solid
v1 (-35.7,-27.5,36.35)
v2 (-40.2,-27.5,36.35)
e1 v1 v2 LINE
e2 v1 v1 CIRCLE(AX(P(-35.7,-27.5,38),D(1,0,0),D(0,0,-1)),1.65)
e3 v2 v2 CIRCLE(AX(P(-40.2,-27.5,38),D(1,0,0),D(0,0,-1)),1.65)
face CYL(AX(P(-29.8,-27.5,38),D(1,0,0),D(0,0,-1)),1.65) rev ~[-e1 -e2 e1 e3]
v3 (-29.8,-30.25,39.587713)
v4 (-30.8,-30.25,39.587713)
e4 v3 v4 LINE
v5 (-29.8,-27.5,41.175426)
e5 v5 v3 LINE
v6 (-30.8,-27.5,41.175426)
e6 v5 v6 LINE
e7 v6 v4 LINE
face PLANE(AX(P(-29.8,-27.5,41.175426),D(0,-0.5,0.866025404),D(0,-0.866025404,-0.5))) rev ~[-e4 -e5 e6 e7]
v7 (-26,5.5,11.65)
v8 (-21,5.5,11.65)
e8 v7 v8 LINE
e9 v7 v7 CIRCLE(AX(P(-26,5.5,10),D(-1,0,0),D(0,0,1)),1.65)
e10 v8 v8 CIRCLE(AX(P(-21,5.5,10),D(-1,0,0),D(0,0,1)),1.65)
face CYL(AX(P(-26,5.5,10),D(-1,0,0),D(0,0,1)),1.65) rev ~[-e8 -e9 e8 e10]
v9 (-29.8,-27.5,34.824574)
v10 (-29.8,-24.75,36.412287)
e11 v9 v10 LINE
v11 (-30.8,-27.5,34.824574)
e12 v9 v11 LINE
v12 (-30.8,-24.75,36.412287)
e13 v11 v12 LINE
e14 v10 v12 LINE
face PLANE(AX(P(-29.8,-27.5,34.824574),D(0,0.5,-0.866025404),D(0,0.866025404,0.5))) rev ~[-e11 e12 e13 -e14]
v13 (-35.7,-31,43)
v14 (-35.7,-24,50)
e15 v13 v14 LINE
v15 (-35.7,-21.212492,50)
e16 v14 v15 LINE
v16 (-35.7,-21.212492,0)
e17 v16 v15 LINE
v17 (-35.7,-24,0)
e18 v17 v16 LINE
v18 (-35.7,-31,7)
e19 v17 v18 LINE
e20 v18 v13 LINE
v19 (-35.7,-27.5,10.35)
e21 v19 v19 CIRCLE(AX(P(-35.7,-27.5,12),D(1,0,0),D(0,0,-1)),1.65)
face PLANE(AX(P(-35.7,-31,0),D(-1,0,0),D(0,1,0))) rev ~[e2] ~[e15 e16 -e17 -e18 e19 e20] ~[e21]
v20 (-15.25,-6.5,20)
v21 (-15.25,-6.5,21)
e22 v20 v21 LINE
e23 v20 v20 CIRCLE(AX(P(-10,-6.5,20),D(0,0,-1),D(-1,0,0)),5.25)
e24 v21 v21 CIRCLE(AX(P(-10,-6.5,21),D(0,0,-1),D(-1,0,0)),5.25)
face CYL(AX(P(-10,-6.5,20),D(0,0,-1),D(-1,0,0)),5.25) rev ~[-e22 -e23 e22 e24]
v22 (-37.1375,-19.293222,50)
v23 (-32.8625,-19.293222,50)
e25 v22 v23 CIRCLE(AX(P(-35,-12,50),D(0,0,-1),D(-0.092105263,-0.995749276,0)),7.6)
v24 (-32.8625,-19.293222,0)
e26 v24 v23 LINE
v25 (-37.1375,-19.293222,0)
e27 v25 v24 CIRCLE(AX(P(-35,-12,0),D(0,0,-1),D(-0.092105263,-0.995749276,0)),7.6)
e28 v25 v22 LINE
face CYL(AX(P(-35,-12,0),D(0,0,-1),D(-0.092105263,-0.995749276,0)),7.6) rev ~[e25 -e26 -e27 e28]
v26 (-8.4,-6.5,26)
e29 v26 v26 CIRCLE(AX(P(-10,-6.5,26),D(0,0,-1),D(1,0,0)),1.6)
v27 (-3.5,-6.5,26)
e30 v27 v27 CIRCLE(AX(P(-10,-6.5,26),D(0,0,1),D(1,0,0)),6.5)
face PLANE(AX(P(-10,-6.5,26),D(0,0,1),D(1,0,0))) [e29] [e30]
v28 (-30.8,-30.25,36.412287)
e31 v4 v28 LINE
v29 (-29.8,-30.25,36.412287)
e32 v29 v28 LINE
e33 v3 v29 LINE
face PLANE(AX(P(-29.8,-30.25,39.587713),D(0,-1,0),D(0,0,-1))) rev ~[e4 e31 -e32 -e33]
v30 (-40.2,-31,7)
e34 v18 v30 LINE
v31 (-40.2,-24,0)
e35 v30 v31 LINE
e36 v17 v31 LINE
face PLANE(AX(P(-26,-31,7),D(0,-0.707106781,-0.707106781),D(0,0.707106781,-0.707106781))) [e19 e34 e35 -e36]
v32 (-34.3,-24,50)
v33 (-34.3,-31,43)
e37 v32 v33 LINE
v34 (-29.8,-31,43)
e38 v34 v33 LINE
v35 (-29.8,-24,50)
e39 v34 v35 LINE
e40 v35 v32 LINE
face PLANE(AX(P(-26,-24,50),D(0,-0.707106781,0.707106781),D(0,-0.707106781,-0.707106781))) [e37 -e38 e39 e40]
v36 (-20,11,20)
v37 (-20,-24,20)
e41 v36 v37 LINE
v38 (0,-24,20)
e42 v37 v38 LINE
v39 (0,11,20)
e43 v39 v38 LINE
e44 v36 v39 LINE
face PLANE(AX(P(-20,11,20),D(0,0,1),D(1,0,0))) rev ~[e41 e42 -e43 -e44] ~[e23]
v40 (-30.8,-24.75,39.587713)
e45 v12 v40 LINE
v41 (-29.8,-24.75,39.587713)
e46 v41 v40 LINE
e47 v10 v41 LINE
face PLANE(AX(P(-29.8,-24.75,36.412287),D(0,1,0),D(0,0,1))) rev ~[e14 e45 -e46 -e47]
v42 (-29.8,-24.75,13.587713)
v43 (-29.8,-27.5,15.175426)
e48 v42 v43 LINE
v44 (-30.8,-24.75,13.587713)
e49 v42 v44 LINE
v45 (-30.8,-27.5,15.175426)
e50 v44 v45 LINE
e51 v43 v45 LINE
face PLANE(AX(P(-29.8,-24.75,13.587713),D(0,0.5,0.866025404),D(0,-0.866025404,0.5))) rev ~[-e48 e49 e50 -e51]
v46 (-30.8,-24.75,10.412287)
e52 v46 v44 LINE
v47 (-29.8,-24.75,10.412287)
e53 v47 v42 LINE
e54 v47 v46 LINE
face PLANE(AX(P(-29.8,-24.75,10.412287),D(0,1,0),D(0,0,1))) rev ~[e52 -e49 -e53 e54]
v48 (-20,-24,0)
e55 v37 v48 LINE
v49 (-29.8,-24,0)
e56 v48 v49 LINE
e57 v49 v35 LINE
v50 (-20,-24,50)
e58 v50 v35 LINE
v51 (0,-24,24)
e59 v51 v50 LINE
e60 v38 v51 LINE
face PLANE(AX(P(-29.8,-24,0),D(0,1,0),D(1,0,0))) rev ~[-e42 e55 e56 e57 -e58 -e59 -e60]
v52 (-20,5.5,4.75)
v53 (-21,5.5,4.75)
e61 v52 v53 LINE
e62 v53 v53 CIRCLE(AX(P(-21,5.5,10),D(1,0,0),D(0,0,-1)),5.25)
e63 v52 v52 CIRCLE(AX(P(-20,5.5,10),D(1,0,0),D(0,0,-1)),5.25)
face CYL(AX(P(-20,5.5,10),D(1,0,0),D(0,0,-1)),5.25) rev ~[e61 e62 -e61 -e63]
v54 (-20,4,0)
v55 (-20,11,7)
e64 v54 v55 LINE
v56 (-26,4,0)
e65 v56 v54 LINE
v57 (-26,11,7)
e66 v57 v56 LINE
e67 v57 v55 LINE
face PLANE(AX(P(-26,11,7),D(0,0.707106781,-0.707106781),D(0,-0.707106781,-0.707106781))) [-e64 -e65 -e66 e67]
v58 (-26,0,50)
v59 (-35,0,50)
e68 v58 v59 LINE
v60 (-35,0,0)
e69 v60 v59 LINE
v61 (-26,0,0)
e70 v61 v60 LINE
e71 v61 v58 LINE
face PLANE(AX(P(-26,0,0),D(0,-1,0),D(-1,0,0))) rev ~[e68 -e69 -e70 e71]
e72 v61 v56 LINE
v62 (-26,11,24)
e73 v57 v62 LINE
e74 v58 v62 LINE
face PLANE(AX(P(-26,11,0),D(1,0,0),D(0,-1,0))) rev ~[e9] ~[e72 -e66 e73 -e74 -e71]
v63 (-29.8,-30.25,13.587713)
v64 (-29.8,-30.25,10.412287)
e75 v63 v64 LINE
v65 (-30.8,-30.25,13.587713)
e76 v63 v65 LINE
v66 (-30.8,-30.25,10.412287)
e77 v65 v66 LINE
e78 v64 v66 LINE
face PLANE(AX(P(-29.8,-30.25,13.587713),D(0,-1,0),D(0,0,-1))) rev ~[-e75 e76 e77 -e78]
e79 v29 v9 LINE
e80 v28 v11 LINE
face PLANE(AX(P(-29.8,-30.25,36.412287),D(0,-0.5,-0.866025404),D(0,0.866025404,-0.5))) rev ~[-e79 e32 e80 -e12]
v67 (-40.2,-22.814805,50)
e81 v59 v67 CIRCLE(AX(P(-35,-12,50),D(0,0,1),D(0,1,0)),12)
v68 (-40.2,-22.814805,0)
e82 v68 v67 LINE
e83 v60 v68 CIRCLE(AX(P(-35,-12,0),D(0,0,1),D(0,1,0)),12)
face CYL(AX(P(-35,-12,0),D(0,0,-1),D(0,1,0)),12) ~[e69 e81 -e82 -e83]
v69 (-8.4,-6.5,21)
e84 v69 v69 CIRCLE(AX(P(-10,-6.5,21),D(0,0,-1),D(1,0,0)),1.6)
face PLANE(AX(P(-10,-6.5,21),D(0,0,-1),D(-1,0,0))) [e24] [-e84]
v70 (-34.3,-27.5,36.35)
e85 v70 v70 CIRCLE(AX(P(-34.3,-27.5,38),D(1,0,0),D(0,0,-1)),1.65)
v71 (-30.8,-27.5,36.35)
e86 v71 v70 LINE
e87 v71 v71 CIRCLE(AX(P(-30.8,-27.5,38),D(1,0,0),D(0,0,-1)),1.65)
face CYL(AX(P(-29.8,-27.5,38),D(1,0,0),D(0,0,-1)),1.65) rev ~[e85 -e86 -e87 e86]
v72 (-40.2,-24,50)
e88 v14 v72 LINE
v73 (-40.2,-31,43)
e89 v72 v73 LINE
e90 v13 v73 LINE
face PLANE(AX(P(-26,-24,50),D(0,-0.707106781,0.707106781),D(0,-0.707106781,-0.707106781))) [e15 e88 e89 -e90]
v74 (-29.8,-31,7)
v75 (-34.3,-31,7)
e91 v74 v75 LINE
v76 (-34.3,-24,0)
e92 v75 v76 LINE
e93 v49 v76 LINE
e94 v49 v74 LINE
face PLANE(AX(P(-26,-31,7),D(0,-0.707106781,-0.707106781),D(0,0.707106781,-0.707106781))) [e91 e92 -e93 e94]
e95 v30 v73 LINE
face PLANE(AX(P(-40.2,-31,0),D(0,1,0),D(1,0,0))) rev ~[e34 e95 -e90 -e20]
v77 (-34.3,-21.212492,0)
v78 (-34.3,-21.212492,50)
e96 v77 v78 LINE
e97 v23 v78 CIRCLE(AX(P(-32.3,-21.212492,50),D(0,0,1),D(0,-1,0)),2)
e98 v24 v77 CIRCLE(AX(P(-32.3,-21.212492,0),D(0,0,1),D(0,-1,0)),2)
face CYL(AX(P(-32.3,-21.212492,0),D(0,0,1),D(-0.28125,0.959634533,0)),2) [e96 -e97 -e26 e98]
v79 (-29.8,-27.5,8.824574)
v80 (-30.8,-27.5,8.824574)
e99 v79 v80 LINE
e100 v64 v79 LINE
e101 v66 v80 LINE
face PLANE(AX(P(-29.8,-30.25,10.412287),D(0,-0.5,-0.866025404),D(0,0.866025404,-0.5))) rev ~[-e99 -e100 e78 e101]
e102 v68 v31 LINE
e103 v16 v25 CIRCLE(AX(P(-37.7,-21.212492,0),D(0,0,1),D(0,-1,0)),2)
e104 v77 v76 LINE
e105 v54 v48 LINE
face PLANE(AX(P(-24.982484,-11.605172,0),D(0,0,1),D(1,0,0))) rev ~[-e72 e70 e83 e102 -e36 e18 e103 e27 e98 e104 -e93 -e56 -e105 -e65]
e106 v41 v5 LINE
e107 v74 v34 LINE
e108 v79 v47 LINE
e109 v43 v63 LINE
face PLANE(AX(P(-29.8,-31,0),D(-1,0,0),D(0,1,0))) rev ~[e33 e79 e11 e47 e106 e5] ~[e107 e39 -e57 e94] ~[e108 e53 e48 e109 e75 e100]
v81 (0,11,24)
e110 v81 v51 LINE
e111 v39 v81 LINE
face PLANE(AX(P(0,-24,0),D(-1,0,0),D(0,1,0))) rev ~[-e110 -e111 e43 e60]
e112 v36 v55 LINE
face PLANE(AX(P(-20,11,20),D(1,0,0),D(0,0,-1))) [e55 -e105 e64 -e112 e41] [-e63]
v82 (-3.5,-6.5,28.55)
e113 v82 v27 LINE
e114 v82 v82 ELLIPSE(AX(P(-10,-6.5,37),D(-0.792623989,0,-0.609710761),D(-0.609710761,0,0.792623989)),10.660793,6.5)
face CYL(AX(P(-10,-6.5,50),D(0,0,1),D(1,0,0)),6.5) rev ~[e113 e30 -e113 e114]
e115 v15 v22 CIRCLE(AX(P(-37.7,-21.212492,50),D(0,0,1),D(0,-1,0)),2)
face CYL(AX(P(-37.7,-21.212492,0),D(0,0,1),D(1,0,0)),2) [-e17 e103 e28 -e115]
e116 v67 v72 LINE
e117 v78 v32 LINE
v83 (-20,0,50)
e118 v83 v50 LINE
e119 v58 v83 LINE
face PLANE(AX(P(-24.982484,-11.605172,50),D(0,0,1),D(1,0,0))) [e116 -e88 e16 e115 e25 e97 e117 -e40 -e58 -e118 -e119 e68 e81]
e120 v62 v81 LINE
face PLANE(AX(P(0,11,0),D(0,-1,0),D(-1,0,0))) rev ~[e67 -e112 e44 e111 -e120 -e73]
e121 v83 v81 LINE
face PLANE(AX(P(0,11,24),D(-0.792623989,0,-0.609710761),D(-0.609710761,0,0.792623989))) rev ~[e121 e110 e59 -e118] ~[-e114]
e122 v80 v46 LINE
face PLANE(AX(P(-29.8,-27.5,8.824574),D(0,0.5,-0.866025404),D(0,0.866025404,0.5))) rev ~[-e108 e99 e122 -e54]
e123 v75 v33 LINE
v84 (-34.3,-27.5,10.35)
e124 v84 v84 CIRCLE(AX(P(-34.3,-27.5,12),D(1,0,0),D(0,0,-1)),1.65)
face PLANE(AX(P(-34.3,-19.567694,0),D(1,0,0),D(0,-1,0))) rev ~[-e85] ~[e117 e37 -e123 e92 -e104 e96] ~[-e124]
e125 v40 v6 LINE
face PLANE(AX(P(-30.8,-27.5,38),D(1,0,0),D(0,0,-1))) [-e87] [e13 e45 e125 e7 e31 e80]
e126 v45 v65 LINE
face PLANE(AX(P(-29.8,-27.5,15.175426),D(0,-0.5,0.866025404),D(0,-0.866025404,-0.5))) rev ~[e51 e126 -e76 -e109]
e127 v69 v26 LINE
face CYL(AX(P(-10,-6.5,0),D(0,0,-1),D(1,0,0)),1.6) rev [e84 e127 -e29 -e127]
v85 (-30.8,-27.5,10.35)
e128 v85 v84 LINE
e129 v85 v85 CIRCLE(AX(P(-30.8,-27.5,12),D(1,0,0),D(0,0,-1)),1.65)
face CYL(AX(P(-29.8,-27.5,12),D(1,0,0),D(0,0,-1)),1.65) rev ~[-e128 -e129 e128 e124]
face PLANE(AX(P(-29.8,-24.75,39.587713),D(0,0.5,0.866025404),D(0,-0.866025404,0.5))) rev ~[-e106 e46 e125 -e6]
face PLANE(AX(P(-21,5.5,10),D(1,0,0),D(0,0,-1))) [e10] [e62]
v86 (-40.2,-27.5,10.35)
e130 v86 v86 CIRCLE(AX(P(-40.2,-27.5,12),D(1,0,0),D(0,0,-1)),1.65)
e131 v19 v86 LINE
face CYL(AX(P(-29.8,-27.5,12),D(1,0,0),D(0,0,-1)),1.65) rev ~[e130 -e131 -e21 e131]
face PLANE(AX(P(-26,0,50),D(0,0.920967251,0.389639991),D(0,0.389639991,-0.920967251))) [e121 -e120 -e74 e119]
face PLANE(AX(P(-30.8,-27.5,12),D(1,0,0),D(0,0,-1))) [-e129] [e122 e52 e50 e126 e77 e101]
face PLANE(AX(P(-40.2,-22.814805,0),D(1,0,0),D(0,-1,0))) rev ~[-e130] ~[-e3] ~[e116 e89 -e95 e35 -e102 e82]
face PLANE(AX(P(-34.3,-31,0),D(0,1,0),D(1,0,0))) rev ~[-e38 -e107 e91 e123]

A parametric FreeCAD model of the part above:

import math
import FreeCAD as App
import Part
import Sketcher

V = App.Vector
Q = App.Units.Quantity


def edges_at(feature, points):
    """Names of the edges that pass closest to the given points."""
    edges = feature.Shape.Edges
    near = lambda p: min(range(len(edges)), key=lambda i: edges[i].distToShape(Part.Vertex(*p))[0])
    return sorted({f"Edge{near(p) + 1}" for p in points})


def add_polygon(sketch, points):
    """Adds a closed chain of lines whose ends are joined by coincident constraints."""
    first, n = sketch.GeometryCount, len(points)
    for a, b in zip(points, points[1:] + points[:1]):
        sketch.addGeometry(Part.LineSegment(App.Vector(*a, 0), App.Vector(*b, 0)), False)
    for i in range(n):
        sketch.addConstraint(Sketcher.Constraint("Coincident", first + i, 2, first + (i + 1) % n, 1))

doc = App.newDocument("Part")
body = doc.addObject("PartDesign::Body", "Body")

# Sketch on XY plane
sketch1 = body.newObject("Sketcher::SketchObject", "Sketch")
sketch1.AttachmentSupport = (doc.getObject("XY_Plane"), [""])
sketch1.MapMode = "FlatFace"
sketch1.addGeometry([
    Part.LineSegment(V(0, 11, 0), V(-26, 11, 0)),  # 0
    Part.LineSegment(V(-26, 11, 0), V(-26, 0, 0)),  # 1
    Part.LineSegment(V(-26, 0, 0), V(-35, 0, 0)),  # 2
    Part.ArcOfCircle(Part.Circle(V(-35, -12, 0), V(0, 0, 1), 12), math.radians(90), math.radians(244)),  # 3
    Part.LineSegment(V(-40.2, -22.8, 0), V(-40.2, -31, 0)),  # 4
    Part.LineSegment(V(-40.2, -31, 0), V(-35.7, -31, 0)),  # 5
    Part.LineSegment(V(-35.7, -31, 0), V(-35.7, -19.6, 0)),  # 6
    Part.ArcOfCircle(Part.Circle(V(-35, -12, 0), V(0, 0, 1), 7.6), math.radians(-85), math.radians(265)),  # 7
    Part.LineSegment(V(-34.3, -19.6, 0), V(-34.3, -31, 0)),  # 8
    Part.LineSegment(V(-34.3, -31, 0), V(-29.8, -31, 0)),  # 9
    Part.LineSegment(V(-29.8, -31, 0), V(-29.8, -24, 0)),  # 10
    Part.LineSegment(V(-29.8, -24, 0), V(0, -24, 0)),  # 11
    Part.LineSegment(V(0, -24, 0), V(0, 11, 0)),  # 12
    Part.Circle(V(-10, -6.5, 0), V(0, 0, 1), 1.6),  # 13
], False)
sketch1.addConstraint([
    Sketcher.Constraint("Coincident", 0, 2, 1, 1),
    Sketcher.Constraint("Coincident", 1, 2, 2, 1),
    Sketcher.Constraint("Tangent", 2, 2, 3, 1),
    Sketcher.Constraint("Coincident", 3, 2, 4, 1),
    Sketcher.Constraint("Coincident", 4, 2, 5, 1),
    Sketcher.Constraint("Coincident", 5, 2, 6, 1),
    Sketcher.Constraint("Coincident", 6, 2, 7, 2),
    Sketcher.Constraint("Coincident", 7, 1, 8, 1),
    Sketcher.Constraint("Coincident", 8, 2, 9, 1),
    Sketcher.Constraint("Coincident", 9, 2, 10, 1),
    Sketcher.Constraint("Coincident", 10, 2, 11, 1),
    Sketcher.Constraint("Coincident", 11, 2, 12, 1),
    Sketcher.Constraint("Coincident", 12, 2, 0, 1),
    Sketcher.Constraint("Horizontal", 0),
    Sketcher.Constraint("Vertical", 1),
    Sketcher.Constraint("Horizontal", 2),
    Sketcher.Constraint("Vertical", 4),
    Sketcher.Constraint("Horizontal", 5),
    Sketcher.Constraint("Vertical", 6),
    Sketcher.Constraint("Vertical", 8),
    Sketcher.Constraint("Horizontal", 9),
    Sketcher.Constraint("Vertical", 10),
    Sketcher.Constraint("Horizontal", 11),
    Sketcher.Constraint("Vertical", 12),
    Sketcher.Constraint("Coincident", 7, 3, 3, 3),
    Sketcher.Constraint("PointOnObject", 1, 2, -1),
    Sketcher.Constraint("PointOnObject", 11, 2, -2),
    Sketcher.Constraint("Horizontal", 6, 2, 7, 1),
    Sketcher.Constraint("Horizontal", 5, 2, 8, 2),
    Sketcher.Constraint("Equal", 5, 9),
    Sketcher.Constraint("Radius", 3, 12.0),
    Sketcher.Constraint("Diameter", 13, 3.2),
    Sketcher.Constraint("Radius", 7, 7.6),
    Sketcher.Constraint("DistanceX", 0, 2, 0, 1, 26.0),
    Sketcher.Constraint("DistanceX", 2, 2, 2, 1, 9.0),
    Sketcher.Constraint("DistanceY", 1, 2, 1, 1, 11.0),
    Sketcher.Constraint("DistanceY", 10, 1, 10, 2, 7.0),
    Sketcher.Constraint("DistanceY", 12, 1, 12, 2, 35.0),
    Sketcher.Constraint("DistanceX", 5, 1, 5, 2, 4.5),
    Sketcher.Constraint("DistanceX", 11, 1, 11, 2, 29.8),
    Sketcher.Constraint("DistanceX", 13, 3, -1, 1, 10.0),
    Sketcher.Constraint("DistanceY", 13, 3, -1, 1, 6.5),
])
pad1 = body.newObject("PartDesign::Pad", "Pad")
pad1.Profile = sketch1
pad1.Length = 50

# Sketch on XZ plane
sketch2 = body.newObject("Sketcher::SketchObject", "Sketch001")
sketch2.AttachmentSupport = (doc.getObject("XZ_Plane"), [""])
sketch2.MapMode = "FlatFace"
sketch2.AttachmentOffset = App.Placement(V(0, 0, -11), App.Rotation())
add_polygon(sketch2, [(0, 24), (-20, 50), (0, 50)])  # lines 0-2
add_polygon(sketch2, [(-20, 0), (-20, 20), (0, 20), (0, 0)])  # lines 3-6
sketch2.addConstraint([
    Sketcher.Constraint("Horizontal", 1),
    Sketcher.Constraint("Vertical", 2),
    Sketcher.Constraint("Vertical", 3),
    Sketcher.Constraint("Horizontal", 4),
    Sketcher.Constraint("Vertical", 5),
    Sketcher.Constraint("Horizontal", 6),
    Sketcher.Constraint("Coincident", 5, 2, -1, 1),
    Sketcher.Constraint("PointOnObject", 1, 2, -2),
    Sketcher.Constraint("Vertical", 0, 2, 3, 2),
    Sketcher.Constraint("Equal", 6, 3),
    Sketcher.Constraint("DistanceX", 1, 1, 1, 2, 20.0),
    Sketcher.Constraint("DistanceY", 2, 2, 2, 1, 26.0),
    Sketcher.Constraint("DistanceY", -1, 1, 0, 2, 50.0),
])
pocket1 = body.newObject("PartDesign::Pocket", "Pocket")
pocket1.Profile = sketch2
pocket1.Type = "ThroughAll"
pocket1.Reversed = True

# Sketch on YZ plane
sketch3 = body.newObject("Sketcher::SketchObject", "Sketch002")
sketch3.AttachmentSupport = (doc.getObject("YZ_Plane"), [""])
sketch3.MapMode = "FlatFace"
sketch3.AttachmentOffset = App.Placement(V(0, 0, -26), App.Rotation())
sketch3.addGeometry(Part.Circle(V(5.5, 10, 0), V(0, 0, 1), 1.6), False)  # 0
add_polygon(sketch3, [(-24, 50), (-31, 43), (-31, 50)])  # lines 1-3
add_polygon(sketch3, [(11, 24), (0, 50), (11, 50)])  # lines 4-6
add_polygon(sketch3, [(-24, 0), (-31, 0), (-31, 7)])  # lines 7-9
add_polygon(sketch3, [(4, 0), (11, 7), (11, 0)])  # lines 10-12
sketch3.addConstraint([
    Sketcher.Constraint("Vertical", 2),
    Sketcher.Constraint("Horizontal", 3),
    Sketcher.Constraint("Horizontal", 5),
    Sketcher.Constraint("Vertical", 6),
    Sketcher.Constraint("Horizontal", 7),
    Sketcher.Constraint("Vertical", 8),
    Sketcher.Constraint("Vertical", 11),
    Sketcher.Constraint("Horizontal", 12),
    Sketcher.Constraint("PointOnObject", 4, 2, -2),
    Sketcher.Constraint("PointOnObject", 7, 2, -1),
    Sketcher.Constraint("PointOnObject", 11, 2, -1),
    Sketcher.Constraint("Perpendicular", 1, 9),
    Sketcher.Constraint("Perpendicular", 9, 10),
    Sketcher.Constraint("Horizontal", 3, 2, 4, 2),
    Sketcher.Constraint("Horizontal", 8, 2, 10, 2),
    Sketcher.Constraint("Vertical", 2, 2, 7, 2),
    Sketcher.Constraint("Vertical", 3, 2, 9, 2),
    Sketcher.Constraint("Vertical", 6, 2, 10, 2),
    Sketcher.Constraint("Equal", 7, 12),
    Sketcher.Constraint("Diameter", 0, 3.3),
    Sketcher.Constraint("DistanceX", 3, 1, 3, 2, 7.0),
    Sketcher.Constraint("DistanceX", 5, 1, 5, 2, 11.0),
    Sketcher.Constraint("DistanceY", 6, 2, 6, 1, 26.0),
    Sketcher.Constraint("DistanceY", -1, 1, 0, 3, 10.0),
    Sketcher.Constraint("DistanceX", 1, 2, -1, 1, 31.0),
    Sketcher.Constraint("DistanceY", -1, 1, 1, 2, 43.0),
    Sketcher.Constraint("DistanceX", -1, 1, 0, 3, 5.5),
])
pocket2 = body.newObject("PartDesign::Pocket", "Pocket001")
pocket2.Profile = sketch3
pocket2.Type = "ThroughAll"
pocket2.Midplane = True

# Sketch on YZ plane
sketch4 = body.newObject("Sketcher::SketchObject", "Sketch003")
sketch4.AttachmentSupport = (doc.getObject("YZ_Plane"), [""])
sketch4.MapMode = "FlatFace"
sketch4.AttachmentOffset = App.Placement(V(0, 0, -29.8), App.Rotation())
sketch4.addGeometry([
    Part.Circle(V(-27.5, 38, 0), V(0, 0, 1), 1.6),
    Part.Circle(V(-27.5, 12, 0), V(0, 0, 1), 1.6),
], False)
sketch4.addConstraint([
    Sketcher.Constraint("Equal", 0, 1),
    Sketcher.Constraint("Vertical", 0, 3, 1, 3),
    Sketcher.Constraint("Diameter", 0, 3.3),
    Sketcher.Constraint("DistanceY", -1, 1, 0, 3, 38.0),
    Sketcher.Constraint("DistanceY", -1, 1, 1, 3, 12.0),
    Sketcher.Constraint("DistanceX", 0, 3, -1, 1, 27.5),
])
pocket3 = body.newObject("PartDesign::Pocket", "Pocket002")
pocket3.Profile = sketch4
pocket3.Type = "ThroughAll"
doc.recompute()

fillet = body.newObject("PartDesign::Fillet", "Fillet")
fillet.Base = (pocket3, edges_at(pocket3, [(-34.3, -19.568, 25), (-35.7, -19.568, 25)]))
fillet.Radius = 2

# Sketch on XY plane
sketch5 = body.newObject("Sketcher::SketchObject", "Sketch004")
sketch5.AttachmentSupport = (doc.getObject("XY_Plane"), [""])
sketch5.MapMode = "FlatFace"
sketch5.AttachmentOffset = App.Placement(V(0, 0, 50), App.Rotation())
sketch5.addGeometry(Part.Circle(V(-10, -6, 0), V(0, 0, 1), 6), False)
sketch5.addConstraint([
    Sketcher.Constraint("Diameter", 0, 13.0),
    Sketcher.Constraint("DistanceX", 0, 3, -1, 1, 10.0),
    Sketcher.Constraint("DistanceY", 0, 3, -1, 1, 6.5),
])
pocket4 = body.newObject("PartDesign::Pocket", "Pocket003")
pocket4.Profile = sketch5
pocket4.Length = 24

# Sketch on YZ plane
sketch6 = body.newObject("Sketcher::SketchObject", "Sketch005")
sketch6.AttachmentSupport = (doc.getObject("YZ_Plane"), [""])
sketch6.MapMode = "FlatFace"
sketch6.AttachmentOffset = App.Placement(V(0, 0, -29.8), App.Rotation())
add_polygon(sketch6, [(-27.5, 8.8), (-24.8, 10.4), (-24.8, 13.6), (-27.5, 15.2), (-30.2, 13.6), (-30.2, 10.4)])  # lines 0-5
add_polygon(sketch6, [(-27.5, 34.8), (-24.8, 36.4), (-24.8, 39.6), (-27.5, 41.2), (-30.2, 39.6), (-30.2, 36.4)])  # lines 6-11
sketch6.addConstraint([
    Sketcher.Constraint("Vertical", 1),
    Sketcher.Constraint("Vertical", 4),
    Sketcher.Constraint("Vertical", 7),
    Sketcher.Constraint("Vertical", 10),
    Sketcher.Constraint("Parallel", 0, 3),
    Sketcher.Constraint("Parallel", 2, 5),
    Sketcher.Constraint("Parallel", 3, 6),
    Sketcher.Constraint("Parallel", 5, 8),
    Sketcher.Constraint("Parallel", 6, 9),
    Sketcher.Constraint("Parallel", 8, 11),
    Sketcher.Constraint("Horizontal", 1, 2, 3, 2),
    Sketcher.Constraint("Horizontal", 0, 2, 4, 2),
    Sketcher.Constraint("Horizontal", 7, 2, 9, 2),
    Sketcher.Constraint("Horizontal", 6, 2, 10, 2),
    Sketcher.Constraint("Vertical", 2, 2, 5, 2),
    Sketcher.Constraint("Vertical", 1, 2, 6, 2),
    Sketcher.Constraint("Vertical", 5, 2, 8, 2),
    Sketcher.Constraint("Equal", 4, 7),
    Sketcher.Constraint("Angle", 0, Q("30 deg")),
    Sketcher.Constraint("DistanceY", 0, 2, 6, 2, 26.0),
    Sketcher.Constraint("DistanceX", 2, 2, -1, 1, 27.5),
    Sketcher.Constraint("DistanceX", 3, 2, 1, 2, 5.5),
    Sketcher.Constraint("DistanceY", 1, 1, 1, 2, 3.175426),
    Sketcher.Constraint("DistanceY", -1, 1, 0, 2, 10.412287),
])
pocket5 = body.newObject("PartDesign::Pocket", "Pocket004")
pocket5.Profile = sketch6
pocket5.Length = 1

# Sketch on YZ plane
sketch7 = body.newObject("Sketcher::SketchObject", "Sketch006")
sketch7.AttachmentSupport = (doc.getObject("YZ_Plane"), [""])
sketch7.MapMode = "FlatFace"
sketch7.AttachmentOffset = App.Placement(V(0, 0, -20), App.Rotation())
sketch7.addGeometry(Part.Circle(V(6, 10, 0), V(0, 0, 1), 5), False)
sketch7.addConstraint([
    Sketcher.Constraint("Diameter", 0, 10.5),
    Sketcher.Constraint("DistanceY", -1, 1, 0, 3, 10.0),
    Sketcher.Constraint("DistanceX", -1, 1, 0, 3, 5.5),
])
pocket6 = body.newObject("PartDesign::Pocket", "Pocket005")
pocket6.Profile = sketch7
pocket6.Length = 1

# Sketch on XY plane
sketch8 = body.newObject("Sketcher::SketchObject", "Sketch007")
sketch8.AttachmentSupport = (doc.getObject("XY_Plane"), [""])
sketch8.MapMode = "FlatFace"
sketch8.AttachmentOffset = App.Placement(V(0, 0, 20), App.Rotation())
sketch8.addGeometry(Part.Circle(V(-10, -6, 0), V(0, 0, 1), 5), False)
sketch8.addConstraint([
    Sketcher.Constraint("Diameter", 0, 10.5),
    Sketcher.Constraint("DistanceX", 0, 3, -1, 1, 10.0),
    Sketcher.Constraint("DistanceY", 0, 3, -1, 1, 6.5),
])
pocket7 = body.newObject("PartDesign::Pocket", "Pocket006")
pocket7.Profile = sketch8
pocket7.Length = 1
pocket7.Reversed = True

doc.recompute()
